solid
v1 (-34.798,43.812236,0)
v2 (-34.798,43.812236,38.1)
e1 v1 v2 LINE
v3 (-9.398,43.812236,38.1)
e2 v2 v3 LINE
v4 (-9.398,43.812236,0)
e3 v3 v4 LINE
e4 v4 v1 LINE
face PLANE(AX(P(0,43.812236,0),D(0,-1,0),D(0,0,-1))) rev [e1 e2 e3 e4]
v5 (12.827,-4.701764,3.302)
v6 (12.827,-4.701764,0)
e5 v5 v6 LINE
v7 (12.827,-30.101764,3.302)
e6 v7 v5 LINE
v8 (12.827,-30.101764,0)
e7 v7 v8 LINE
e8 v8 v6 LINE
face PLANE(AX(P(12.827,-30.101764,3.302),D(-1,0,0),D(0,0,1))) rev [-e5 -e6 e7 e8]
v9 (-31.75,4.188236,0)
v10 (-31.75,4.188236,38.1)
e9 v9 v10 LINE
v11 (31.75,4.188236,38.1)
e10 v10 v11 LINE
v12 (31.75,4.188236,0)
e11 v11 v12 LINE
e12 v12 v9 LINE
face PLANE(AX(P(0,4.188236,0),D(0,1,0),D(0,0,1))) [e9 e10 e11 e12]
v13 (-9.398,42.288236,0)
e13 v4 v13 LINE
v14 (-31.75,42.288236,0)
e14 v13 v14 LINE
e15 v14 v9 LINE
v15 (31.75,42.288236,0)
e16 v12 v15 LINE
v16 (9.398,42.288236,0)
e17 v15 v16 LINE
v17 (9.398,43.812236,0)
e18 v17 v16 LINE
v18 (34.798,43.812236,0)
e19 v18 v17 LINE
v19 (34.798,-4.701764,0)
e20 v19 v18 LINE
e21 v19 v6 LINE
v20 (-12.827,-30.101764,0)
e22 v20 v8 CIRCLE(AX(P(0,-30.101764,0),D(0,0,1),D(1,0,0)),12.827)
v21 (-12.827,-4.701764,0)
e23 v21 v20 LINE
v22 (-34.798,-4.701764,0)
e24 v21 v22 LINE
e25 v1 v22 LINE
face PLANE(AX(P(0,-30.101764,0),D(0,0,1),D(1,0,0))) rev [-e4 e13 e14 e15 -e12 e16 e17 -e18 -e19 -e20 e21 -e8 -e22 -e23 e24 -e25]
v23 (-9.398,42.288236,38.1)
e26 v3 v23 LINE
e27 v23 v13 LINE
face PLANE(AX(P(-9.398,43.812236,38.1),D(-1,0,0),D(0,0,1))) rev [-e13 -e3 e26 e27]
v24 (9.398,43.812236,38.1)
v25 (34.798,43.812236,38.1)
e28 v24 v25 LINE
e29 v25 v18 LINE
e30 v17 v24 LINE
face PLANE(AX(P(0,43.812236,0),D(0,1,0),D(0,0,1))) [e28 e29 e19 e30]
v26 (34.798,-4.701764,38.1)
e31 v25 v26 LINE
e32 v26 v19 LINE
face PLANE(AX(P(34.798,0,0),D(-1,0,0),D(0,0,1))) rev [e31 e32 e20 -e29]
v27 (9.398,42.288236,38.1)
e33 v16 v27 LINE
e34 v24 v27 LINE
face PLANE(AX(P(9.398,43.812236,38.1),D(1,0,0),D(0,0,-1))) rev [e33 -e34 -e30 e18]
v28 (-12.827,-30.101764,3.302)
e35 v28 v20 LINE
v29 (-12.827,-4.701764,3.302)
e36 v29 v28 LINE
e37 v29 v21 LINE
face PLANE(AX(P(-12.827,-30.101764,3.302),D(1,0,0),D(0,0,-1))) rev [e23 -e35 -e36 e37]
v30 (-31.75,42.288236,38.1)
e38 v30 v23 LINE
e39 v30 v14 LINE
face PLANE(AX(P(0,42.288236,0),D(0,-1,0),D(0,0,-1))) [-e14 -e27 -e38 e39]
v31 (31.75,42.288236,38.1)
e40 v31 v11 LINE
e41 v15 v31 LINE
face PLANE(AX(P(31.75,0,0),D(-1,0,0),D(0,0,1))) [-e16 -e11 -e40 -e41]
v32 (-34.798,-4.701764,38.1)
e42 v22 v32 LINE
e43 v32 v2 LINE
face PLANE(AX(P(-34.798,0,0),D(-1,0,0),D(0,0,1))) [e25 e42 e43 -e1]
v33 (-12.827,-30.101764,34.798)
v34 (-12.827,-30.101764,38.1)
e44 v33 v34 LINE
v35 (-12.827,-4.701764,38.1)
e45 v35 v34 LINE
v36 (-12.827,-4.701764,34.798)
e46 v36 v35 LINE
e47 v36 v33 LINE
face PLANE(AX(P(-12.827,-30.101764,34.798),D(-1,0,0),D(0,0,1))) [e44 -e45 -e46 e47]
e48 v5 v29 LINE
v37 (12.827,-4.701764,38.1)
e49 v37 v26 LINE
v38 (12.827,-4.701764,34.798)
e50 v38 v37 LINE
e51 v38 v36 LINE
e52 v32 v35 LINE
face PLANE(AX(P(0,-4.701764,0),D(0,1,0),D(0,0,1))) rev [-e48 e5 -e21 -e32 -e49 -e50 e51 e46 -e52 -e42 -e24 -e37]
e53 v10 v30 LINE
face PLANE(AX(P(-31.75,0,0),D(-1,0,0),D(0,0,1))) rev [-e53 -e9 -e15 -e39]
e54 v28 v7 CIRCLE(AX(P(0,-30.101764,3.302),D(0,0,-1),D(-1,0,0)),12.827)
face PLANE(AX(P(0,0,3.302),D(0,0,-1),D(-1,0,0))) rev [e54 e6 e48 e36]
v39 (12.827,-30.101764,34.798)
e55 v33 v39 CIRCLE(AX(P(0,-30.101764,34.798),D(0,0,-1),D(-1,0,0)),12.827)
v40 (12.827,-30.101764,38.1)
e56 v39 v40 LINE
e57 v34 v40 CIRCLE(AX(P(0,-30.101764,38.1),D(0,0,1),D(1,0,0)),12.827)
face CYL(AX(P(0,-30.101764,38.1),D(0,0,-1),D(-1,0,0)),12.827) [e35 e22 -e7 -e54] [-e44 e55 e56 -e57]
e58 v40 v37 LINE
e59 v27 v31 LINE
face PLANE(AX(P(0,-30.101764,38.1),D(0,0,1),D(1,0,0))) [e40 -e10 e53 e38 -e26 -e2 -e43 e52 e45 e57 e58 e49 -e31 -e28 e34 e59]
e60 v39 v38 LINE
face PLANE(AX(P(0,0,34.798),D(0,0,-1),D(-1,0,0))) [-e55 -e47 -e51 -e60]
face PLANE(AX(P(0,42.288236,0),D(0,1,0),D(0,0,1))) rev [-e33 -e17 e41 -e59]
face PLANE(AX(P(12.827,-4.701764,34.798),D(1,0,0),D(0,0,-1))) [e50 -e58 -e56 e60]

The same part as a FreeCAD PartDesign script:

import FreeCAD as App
import Part
import Sketcher
from FreeCAD import Vector
Q = App.Units.Quantity


def add_polygon(sketch, points):
    """Adds a closed chain of lines whose ends are joined by coincident constraints."""
    first, n = sketch.GeometryCount, len(points)
    for a, b in zip(points, points[1:] + points[:1]):
        sketch.addGeometry(Part.LineSegment(App.Vector(*a, 0), App.Vector(*b, 0)), False)
    for i in range(n):
        sketch.addConstraint(Sketcher.Constraint("Coincident", first + i, 2, first + (i + 1) % n, 1))

doc = App.newDocument("Part")
body = doc.addObject("PartDesign::Body", "Body")

# Sketch on XY plane
sketch1 = doc.addObject("Sketcher::SketchObject", "Sketch")
body.addObject(sketch1)
sketch1.AttachmentSupport = (doc.XY_Plane, [""])
sketch1.MapMode = "FlatFace"
sketch1.addGeometry(Part.Circle(Vector(0, -30, 0), Vector(0, 0, 1), 13), False)
sketch1.addConstraint([
    Sketcher.Constraint("PointOnObject", 0, 3, -2),
    Sketcher.Constraint("Diameter", 0, Q("1.01 in")),
    Sketcher.Constraint("DistanceY", 0, 3, -1, 1, 30.101764),
])
pad1 = doc.addObject("PartDesign::Pad", "Pad")
body.addObject(pad1)
pad1.Profile = sketch1
pad1.Length = Q("1.5 in")

# Sketch on XY plane
sketch2 = doc.addObject("Sketcher::SketchObject", "Sketch001")
body.addObject(sketch2)
sketch2.AttachmentSupport = (doc.XY_Plane, [""])
sketch2.MapMode = "FlatFace"
add_polygon(sketch2, [(-13, -5), (-13, -30), (13, -30), (13, -5)])  # lines 0-3
sketch2.addConstraint([
    Sketcher.Constraint("Vertical", 0),
    Sketcher.Constraint("Horizontal", 1),
    Sketcher.Constraint("Vertical", 2),
    Sketcher.Constraint("Horizontal", 3),
    Sketcher.Constraint("DistanceY", 0, 2, 0, 1, Q("1 in")),
    Sketcher.Constraint("DistanceX", 1, 1, 1, 2, Q("1.01 in")),
    Sketcher.Constraint("DistanceX", 0, 2, -1, 1, Q("0.505 in")),
    Sketcher.Constraint("DistanceY", 0, 2, -1, 1, 30.101764),
])
pad2 = doc.addObject("PartDesign::Pad", "Pad001")
body.addObject(pad2)
pad2.Profile = sketch2
pad2.Length = Q("0.13 in")

# Sketch on XZ plane
sketch3 = doc.addObject("Sketcher::SketchObject", "Sketch002")
body.addObject(sketch3)
sketch3.AttachmentSupport = (doc.XZ_Plane, [""])
sketch3.MapMode = "FlatFace"
sketch3.AttachmentOffset = App.Placement(Vector(0, 0, 4.701764), App.Rotation())
add_polygon(sketch3, [(-32, 0), (-32, 38), (32, 38), (32, 0)])  # lines 0-3
sketch3.addConstraint([
    Sketcher.Constraint("Vertical", 0),
    Sketcher.Constraint("Horizontal", 1),
    Sketcher.Constraint("Vertical", 2),
    Sketcher.Constraint("Horizontal", 3),
    Sketcher.Constraint("Symmetric", 2, 2, 3, 2, -1, 1),
    Sketcher.Constraint("DistanceX", 1, 1, 1, 2, Q("2.5 in")),
    Sketcher.Constraint("DistanceY", 0, 1, 0, 2, Q("1.5 in")),
])
pad3 = doc.addObject("PartDesign::Pad", "Pad002")
body.addObject(pad3)
pad3.Profile = sketch3
pad3.Length = Q("0.35 in")
pad3.Reversed = True

# Sketch on YZ plane
sketch4 = doc.addObject("Sketcher::SketchObject", "Sketch003")
body.addObject(sketch4)
sketch4.AttachmentSupport = (doc.YZ_Plane, [""])
sketch4.MapMode = "FlatFace"
sketch4.AttachmentOffset = App.Placement(Vector(0, 0, 1.25 * 25.4), App.Rotation())
add_polygon(sketch4, [(42, 38), (-5, 38), (-5, 0), (42, 0)])  # lines 0-3
sketch4.addConstraint([
    Sketcher.Constraint("Horizontal", 0),
    Sketcher.Constraint("Vertical", 1),
    Sketcher.Constraint("Horizontal", 2),
    Sketcher.Constraint("Vertical", 3),
    Sketcher.Constraint("PointOnObject", 1, 2, -1),
    Sketcher.Constraint("DistanceY", 1, 2, 1, 1, Q("1.5 in")),
    Sketcher.Constraint("DistanceX", 0, 2, 0, 1, Q("1.85 in")),
    Sketcher.Constraint("DistanceX", 0, 2, -1, 1, 4.701764),
])
pad4 = doc.addObject("PartDesign::Pad", "Pad003")
body.addObject(pad4)
pad4.Profile = sketch4
pad4.Length = Q("0.12 in")

# Sketch on YZ plane
sketch5 = doc.addObject("Sketcher::SketchObject", "Sketch004")
body.addObject(sketch5)
sketch5.AttachmentSupport = (doc.YZ_Plane, [""])
sketch5.MapMode = "FlatFace"
sketch5.AttachmentOffset = App.Placement(Vector(0, 0, -1.25 * 25.4), App.Rotation())
add_polygon(sketch5, [(42, 0), (-5, 0), (-5, 38), (42, 38)])  # lines 0-3
sketch5.addConstraint([
    Sketcher.Constraint("Horizontal", 0),
    Sketcher.Constraint("Vertical", 1),
    Sketcher.Constraint("Horizontal", 2),
    Sketcher.Constraint("Vertical", 3),
    Sketcher.Constraint("PointOnObject", 0, 2, -1),
    Sketcher.Constraint("DistanceY", 1, 1, 1, 2, Q("1.5 in")),
    Sketcher.Constraint("DistanceX", 0, 2, 0, 1, Q("1.85 in")),
    Sketcher.Constraint("DistanceX", 0, 2, -1, 1, 4.701764),
])
pad5 = doc.addObject("PartDesign::Pad", "Pad004")
body.addObject(pad5)
pad5.Profile = sketch5
pad5.Length = Q("0.12 in")
pad5.Reversed = True

# Sketch on XZ plane
sketch6 = doc.addObject("Sketcher::SketchObject", "Sketch005")
body.addObject(sketch6)
sketch6.AttachmentSupport = (doc.XZ_Plane, [""])
sketch6.MapMode = "FlatFace"
sketch6.AttachmentOffset = App.Placement(Vector(0, 0, -42.288236), App.Rotation())
add_polygon(sketch6, [(9, 0), (9, 38), (35, 38), (35, 0)])  # lines 0-3
sketch6.addConstraint([
    Sketcher.Constraint("Vertical", 0),
    Sketcher.Constraint("Horizontal", 1),
    Sketcher.Constraint("Vertical", 2),
    Sketcher.Constraint("Horizontal", 3),
    Sketcher.Constraint("PointOnObject", 2, 2, -1),
    Sketcher.Constraint("DistanceX", 1, 1, 1, 2, Q("1 in")),
    Sketcher.Constraint("DistanceY", 0, 1, 0, 2, Q("1.5 in")),
    Sketcher.Constraint("DistanceX", -1, 1, 0, 2, Q("0.37 in")),
])
pad6 = doc.addObject("PartDesign::Pad", "Pad005")
body.addObject(pad6)
pad6.Profile = sketch6
pad6.Length = Q("0.06 in")
pad6.Reversed = True

# Sketch on XZ plane
sketch7 = doc.addObject("Sketcher::SketchObject", "Sketch006")
body.addObject(sketch7)
sketch7.AttachmentSupport = (doc.XZ_Plane, [""])
sketch7.MapMode = "FlatFace"
sketch7.AttachmentOffset = App.Placement(Vector(0, 0, -42.288236), App.Rotation())
add_polygon(sketch7, [(-35, 0), (-35, 38), (-9, 38), (-9, 0)])  # lines 0-3
sketch7.addConstraint([
    Sketcher.Constraint("Vertical", 0),
    Sketcher.Constraint("Horizontal", 1),
    Sketcher.Constraint("Vertical", 2),
    Sketcher.Constraint("Horizontal", 3),
    Sketcher.Constraint("PointOnObject", 2, 2, -1),
    Sketcher.Constraint("DistanceX", 1, 1, 1, 2, Q("1 in")),
    Sketcher.Constraint("DistanceY", 0, 1, 0, 2, Q("1.5 in")),
    Sketcher.Constraint("DistanceX", 0, 2, -1, 1, Q("1.37 in")),
])
pad7 = doc.addObject("PartDesign::Pad", "Pad006")
body.addObject(pad7)
pad7.Profile = sketch7
pad7.Length = Q("0.06 in")
pad7.Reversed = True

# Sketch on XY plane
sketch8 = doc.addObject("Sketcher::SketchObject", "Sketch007")
body.addObject(sketch8)
sketch8.AttachmentSupport = (doc.XY_Plane, [""])
sketch8.MapMode = "FlatFace"
sketch8.AttachmentOffset = App.Placement(Vector(0, 0, 1.5 * 25.4), App.Rotation())
add_polygon(sketch8, [(-13, -5), (-13, -30), (13, -30), (13, -5)])  # lines 0-3
sketch8.addConstraint([
    Sketcher.Constraint("Vertical", 0),
    Sketcher.Constraint("Horizontal", 1),
    Sketcher.Constraint("Vertical", 2),
    Sketcher.Constraint("Horizontal", 3),
    Sketcher.Constraint("DistanceY", 0, 2, 0, 1, Q("1 in")),
    Sketcher.Constraint("DistanceX", 1, 1, 1, 2, Q("1.01 in")),
    Sketcher.Constraint("DistanceX", 0, 2, -1, 1, Q("0.505 in")),
    Sketcher.Constraint("DistanceY", 0, 2, -1, 1, 30.101764),
])
pad8 = doc.addObject("PartDesign::Pad", "Pad007")
body.addObject(pad8)
pad8.Profile = sketch8
pad8.Length = Q("0.13 in")
pad8.Reversed = True

doc.recompute()
